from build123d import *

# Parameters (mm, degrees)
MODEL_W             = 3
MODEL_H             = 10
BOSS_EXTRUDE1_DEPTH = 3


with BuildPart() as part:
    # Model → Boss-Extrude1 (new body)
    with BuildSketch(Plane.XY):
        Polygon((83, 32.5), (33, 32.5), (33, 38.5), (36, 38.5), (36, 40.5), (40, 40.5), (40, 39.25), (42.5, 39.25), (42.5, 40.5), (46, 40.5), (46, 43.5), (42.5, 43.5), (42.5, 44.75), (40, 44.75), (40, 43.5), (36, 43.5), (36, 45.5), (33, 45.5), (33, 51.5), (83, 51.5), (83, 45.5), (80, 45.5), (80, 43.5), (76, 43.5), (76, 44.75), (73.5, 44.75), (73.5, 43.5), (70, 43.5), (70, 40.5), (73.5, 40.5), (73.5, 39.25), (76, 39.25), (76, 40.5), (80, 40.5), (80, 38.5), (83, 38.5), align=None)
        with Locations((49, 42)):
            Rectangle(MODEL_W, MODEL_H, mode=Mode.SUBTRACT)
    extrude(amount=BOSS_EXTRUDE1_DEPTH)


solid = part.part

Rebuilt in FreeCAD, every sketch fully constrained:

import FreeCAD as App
import Part
import Sketcher
Q = App.Units.Quantity

doc = App.newDocument("Part")
params = doc.addObject("Spreadsheet::Sheet", "Params")
for row, (alias, value) in enumerate([
    ("sketch1_width", "50 mm"),
    ("sketch1_width2", "3 mm"),
    ("sketch1_width3", "4 mm"),
    ("sketch1_height", "6 mm"),
    ("sketch1_height2", "2 mm"),
    ("pad1_length", "3 mm"),
], start=1):
    params.set(f"A{row}", alias)
    params.set(f"B{row}", "=" + value)
    params.setAlias(f"B{row}", alias)

body = doc.addObject("PartDesign::Body", "Body")

# Sketch on XY plane
sketch1 = body.newObject("Sketcher::SketchObject", "Sketch")
sketch1.AttachmentSupport = (doc.getObject("XY_Plane"), [""])
sketch1.MapMode = "FlatFace"
sketch1.addGeometry([
    Part.LineSegment(App.Vector(33, 32.5, 0), App.Vector(83, 32.5, 0)),  # 0
    Part.LineSegment(App.Vector(83, 32.5, 0), App.Vector(83, 38.5, 0)),  # 1
    Part.LineSegment(App.Vector(83, 38.5, 0), App.Vector(80, 38.5, 0)),  # 2
    Part.LineSegment(App.Vector(80, 38.5, 0), App.Vector(80, 40.5, 0)),  # 3
    Part.LineSegment(App.Vector(80, 40.5, 0), App.Vector(76, 40.5, 0)),  # 4
    Part.LineSegment(App.Vector(76, 40.5, 0), App.Vector(76, 39.25, 0)),  # 5
    Part.LineSegment(App.Vector(76, 39.25, 0), App.Vector(73.5, 39.25, 0)),  # 6
    Part.LineSegment(App.Vector(73.5, 39.25, 0), App.Vector(73.5, 40.5, 0)),  # 7
    Part.LineSegment(App.Vector(73.5, 40.5, 0), App.Vector(70, 40.5, 0)),  # 8
    Part.LineSegment(App.Vector(70, 40.5, 0), App.Vector(70, 43.5, 0)),  # 9
    Part.LineSegment(App.Vector(70, 43.5, 0), App.Vector(73.5, 43.5, 0)),  # 10
    Part.LineSegment(App.Vector(73.5, 43.5, 0), App.Vector(73.5, 44.75, 0)),  # 11
    Part.LineSegment(App.Vector(73.5, 44.75, 0), App.Vector(76, 44.75, 0)),  # 12
    Part.LineSegment(App.Vector(76, 44.75, 0), App.Vector(76, 43.5, 0)),  # 13
    Part.LineSegment(App.Vector(76, 43.5, 0), App.Vector(80, 43.5, 0)),  # 14
    Part.LineSegment(App.Vector(80, 43.5, 0), App.Vector(80, 45.5, 0)),  # 15
    Part.LineSegment(App.Vector(80, 45.5, 0), App.Vector(83, 45.5, 0)),  # 16
    Part.LineSegment(App.Vector(83, 45.5, 0), App.Vector(83, 51.5, 0)),  # 17
    Part.LineSegment(App.Vector(83, 51.5, 0), App.Vector(33, 51.5, 0)),  # 18
    Part.LineSegment(App.Vector(33, 51.5, 0), App.Vector(33, 45.5, 0)),  # 19
    Part.LineSegment(App.Vector(33, 45.5, 0), App.Vector(36, 45.5, 0)),  # 20
    Part.LineSegment(App.Vector(36, 45.5, 0), App.Vector(36, 43.5, 0)),  # 21
    Part.LineSegment(App.Vector(36, 43.5, 0), App.Vector(40, 43.5, 0)),  # 22
    Part.LineSegment(App.Vector(40, 43.5, 0), App.Vector(40, 44.75, 0)),  # 23
    Part.LineSegment(App.Vector(40, 44.75, 0), App.Vector(42.5, 44.75, 0)),  # 24
    Part.LineSegment(App.Vector(42.5, 44.75, 0), App.Vector(42.5, 43.5, 0)),  # 25
    Part.LineSegment(App.Vector(42.5, 43.5, 0), App.Vector(46, 43.5, 0)),  # 26
    Part.LineSegment(App.Vector(46, 43.5, 0), App.Vector(46, 40.5, 0)),  # 27
    Part.LineSegment(App.Vector(46, 40.5, 0), App.Vector(42.5, 40.5, 0)),  # 28
    Part.LineSegment(App.Vector(42.5, 40.5, 0), App.Vector(42.5, 39.25, 0)),  # 29
    Part.LineSegment(App.Vector(42.5, 39.25, 0), App.Vector(40, 39.25, 0)),  # 30
    Part.LineSegment(App.Vector(40, 39.25, 0), App.Vector(40, 40.5, 0)),  # 31
    Part.LineSegment(App.Vector(40, 40.5, 0), App.Vector(36, 40.5, 0)),  # 32
    Part.LineSegment(App.Vector(36, 40.5, 0), App.Vector(36, 38.5, 0)),  # 33
    Part.LineSegment(App.Vector(36, 38.5, 0), App.Vector(33, 38.5, 0)),  # 34
    Part.LineSegment(App.Vector(33, 38.5, 0), App.Vector(33, 32.5, 0)),  # 35
    Part.LineSegment(App.Vector(47.5, 37, 0), App.Vector(47.5, 47, 0)),  # 36
    Part.LineSegment(App.Vector(47.5, 47, 0), App.Vector(50.5, 47, 0)),  # 37
    Part.LineSegment(App.Vector(50.5, 47, 0), App.Vector(50.5, 37, 0)),  # 38
    Part.LineSegment(App.Vector(50.5, 37, 0), App.Vector(47.5, 37, 0)),  # 39
], False)
sketch1.addConstraint([
    Sketcher.Constraint("Coincident", 0, 2, 1, 1),
    Sketcher.Constraint("Coincident", 1, 2, 2, 1),
    Sketcher.Constraint("Coincident", 2, 2, 3, 1),
    Sketcher.Constraint("Coincident", 3, 2, 4, 1),
    Sketcher.Constraint("Coincident", 4, 2, 5, 1),
    Sketcher.Constraint("Coincident", 5, 2, 6, 1),
    Sketcher.Constraint("Coincident", 6, 2, 7, 1),
    Sketcher.Constraint("Coincident", 7, 2, 8, 1),
    Sketcher.Constraint("Coincident", 8, 2, 9, 1),
    Sketcher.Constraint("Coincident", 9, 2, 10, 1),
    Sketcher.Constraint("Coincident", 10, 2, 11, 1),
    Sketcher.Constraint("Coincident", 11, 2, 12, 1),
    Sketcher.Constraint("Coincident", 12, 2, 13, 1),
    Sketcher.Constraint("Coincident", 13, 2, 14, 1),
    Sketcher.Constraint("Coincident", 14, 2, 15, 1),
    Sketcher.Constraint("Coincident", 15, 2, 16, 1),
    Sketcher.Constraint("Coincident", 16, 2, 17, 1),
    Sketcher.Constraint("Coincident", 17, 2, 18, 1),
    Sketcher.Constraint("Coincident", 18, 2, 19, 1),
    Sketcher.Constraint("Coincident", 19, 2, 20, 1),
    Sketcher.Constraint("Coincident", 20, 2, 21, 1),
    Sketcher.Constraint("Coincident", 21, 2, 22, 1),
    Sketcher.Constraint("Coincident", 22, 2, 23, 1),
    Sketcher.Constraint("Coincident", 23, 2, 24, 1),
    Sketcher.Constraint("Coincident", 24, 2, 25, 1),
    Sketcher.Constraint("Coincident", 25, 2, 26, 1),
    Sketcher.Constraint("Coincident", 26, 2, 27, 1),
    Sketcher.Constraint("Coincident", 27, 2, 28, 1),
    Sketcher.Constraint("Coincident", 28, 2, 29, 1),
    Sketcher.Constraint("Coincident", 29, 2, 30, 1),
    Sketcher.Constraint("Coincident", 30, 2, 31, 1),
    Sketcher.Constraint("Coincident", 31, 2, 32, 1),
    Sketcher.Constraint("Coincident", 32, 2, 33, 1),
    Sketcher.Constraint("Coincident", 33, 2, 34, 1),
    Sketcher.Constraint("Coincident", 34, 2, 35, 1),
    Sketcher.Constraint("Coincident", 35, 2, 0, 1),
    Sketcher.Constraint("Coincident", 36, 2, 37, 1),
    Sketcher.Constraint("Coincident", 37, 2, 38, 1),
    Sketcher.Constraint("Coincident", 38, 2, 39, 1),
    Sketcher.Constraint("Coincident", 39, 2, 36, 1),
    Sketcher.Constraint("Horizontal", 0),
    Sketcher.Constraint("Vertical", 1),
    Sketcher.Constraint("Horizontal", 2),
    Sketcher.Constraint("Vertical", 3),
    Sketcher.Constraint("Horizontal", 4),
    Sketcher.Constraint("Vertical", 5),
    Sketcher.Constraint("Horizontal", 6),
    Sketcher.Constraint("Vertical", 7),
    Sketcher.Constraint("Horizontal", 8),
    Sketcher.Constraint("Vertical", 9),
    Sketcher.Constraint("Horizontal", 10),
    Sketcher.Constraint("Vertical", 11),
    Sketcher.Constraint("Horizontal", 12),
    Sketcher.Constraint("Vertical", 13),
    Sketcher.Constraint("Horizontal", 14),
    Sketcher.Constraint("Vertical", 15),
    Sketcher.Constraint("Horizontal", 16),
    Sketcher.Constraint("Vertical", 17),
    Sketcher.Constraint("Horizontal", 18),
    Sketcher.Constraint("Vertical", 19),
    Sketcher.Constraint("Horizontal", 20),
    Sketcher.Constraint("Vertical", 21),
    Sketcher.Constraint("Horizontal", 22),
    Sketcher.Constraint("Vertical", 23),
    Sketcher.Constraint("Horizontal", 24),
    Sketcher.Constraint("Vertical", 25),
    Sketcher.Constraint("Horizontal", 26),
    Sketcher.Constraint("Vertical", 27),
    Sketcher.Constraint("Horizontal", 28),
    Sketcher.Constraint("Vertical", 29),
    Sketcher.Constraint("Horizontal", 30),
    Sketcher.Constraint("Vertical", 31),
    Sketcher.Constraint("Horizontal", 32),
    Sketcher.Constraint("Vertical", 33),
    Sketcher.Constraint("Horizontal", 34),
    Sketcher.Constraint("Vertical", 35),
    Sketcher.Constraint("Vertical", 36),
    Sketcher.Constraint("Horizontal", 37),
    Sketcher.Constraint("Vertical", 38),
    Sketcher.Constraint("Horizontal", 39),
    Sketcher.Constraint("Horizontal", 4, 2, 7, 2),
    Sketcher.Constraint("Horizontal", 10, 2, 13, 2),
    Sketcher.Constraint("Horizontal", 16, 2, 19, 2),
    Sketcher.Constraint("Horizontal", 14, 2, 21, 2),
    Sketcher.Constraint("Horizontal", 12, 2, 23, 2),
    Sketcher.Constraint("Horizontal", 22, 2, 25, 2),
    Sketcher.Constraint("Horizontal", 8, 2, 27, 2),
    Sketcher.Constraint("Horizontal", 6, 2, 29, 2),
    Sketcher.Constraint("Horizontal", 28, 2, 31, 2),
    Sketcher.Constraint("Horizontal", 2, 2, 33, 2),
    Sketcher.Constraint("Vertical", 7, 2, 10, 2),
    Sketcher.Constraint("Vertical", 5, 2, 12, 2),
    Sketcher.Constraint("Vertical", 3, 2, 14, 2),
    Sketcher.Constraint("Vertical", 1, 2, 16, 2),
    Sketcher.Constraint("Vertical", 25, 2, 28, 2),
    Sketcher.Constraint("Vertical", 23, 2, 30, 2),
    Sketcher.Constraint("Vertical", 21, 2, 32, 2),
    Sketcher.Constraint("Vertical", 19, 2, 34, 2),
    Sketcher.Constraint("Equal", 16, 20),
    Sketcher.Constraint("Equal", 14, 22),
    Sketcher.Constraint("Equal", 12, 24),
    Sketcher.Constraint("Equal", 10, 26),
    Sketcher.Constraint("Equal", 34, 37),
    Sketcher.Constraint("Equal", 39, 9),
    Sketcher.Constraint("Equal", 7, 11),
    Sketcher.Constraint("Equal", 3, 15),
    Sketcher.Constraint("Equal", 1, 17),
    Sketcher.Constraint("DistanceX", 0, 1, 0, 2, Q("50 mm")),
    Sketcher.Constraint("DistanceX", 2, 2, 2, 1, Q("3 mm")),
    Sketcher.Constraint("DistanceX", 4, 2, 4, 1, Q("4 mm")),
    Sketcher.Constraint("DistanceY", 1, 1, 1, 2, Q("6 mm")),
    Sketcher.Constraint("DistanceY", 3, 1, 3, 2, Q("2 mm")),
    Sketcher.Constraint("DistanceY", 36, 1, 36, 2, Q("10 mm")),
    Sketcher.Constraint("DistanceX", 6, 2, 6, 1, Q("2.5 mm")),
    Sketcher.Constraint("DistanceX", 8, 2, 8, 1, Q("3.5 mm")),
    Sketcher.Constraint("DistanceX", -1, 1, 0, 2, Q("83 mm")),
    Sketcher.Constraint("DistanceY", -1, 1, 36, 2, Q("47 mm")),
    Sketcher.Constraint("DistanceX", 24, 2, 36, 2, Q("5 mm")),
    Sketcher.Constraint("DistanceY", 5, 2, 5, 1, Q("1.25 mm")),
    Sketcher.Constraint("DistanceY", -1, 1, 0, 2, Q("32.5 mm")),
])
sketch1.setExpression("Constraints[107]", "Params.sketch1_width")
sketch1.setExpression("Constraints[108]", "Params.sketch1_width2")
sketch1.setExpression("Constraints[109]", "Params.sketch1_width3")
sketch1.setExpression("Constraints[110]", "Params.sketch1_height")
sketch1.setExpression("Constraints[111]", "Params.sketch1_height2")
pad1 = body.newObject("PartDesign::Pad", "Pad")
pad1.Profile = sketch1
pad1.setExpression("Length", "Params.pad1_length")

doc.recompute()
